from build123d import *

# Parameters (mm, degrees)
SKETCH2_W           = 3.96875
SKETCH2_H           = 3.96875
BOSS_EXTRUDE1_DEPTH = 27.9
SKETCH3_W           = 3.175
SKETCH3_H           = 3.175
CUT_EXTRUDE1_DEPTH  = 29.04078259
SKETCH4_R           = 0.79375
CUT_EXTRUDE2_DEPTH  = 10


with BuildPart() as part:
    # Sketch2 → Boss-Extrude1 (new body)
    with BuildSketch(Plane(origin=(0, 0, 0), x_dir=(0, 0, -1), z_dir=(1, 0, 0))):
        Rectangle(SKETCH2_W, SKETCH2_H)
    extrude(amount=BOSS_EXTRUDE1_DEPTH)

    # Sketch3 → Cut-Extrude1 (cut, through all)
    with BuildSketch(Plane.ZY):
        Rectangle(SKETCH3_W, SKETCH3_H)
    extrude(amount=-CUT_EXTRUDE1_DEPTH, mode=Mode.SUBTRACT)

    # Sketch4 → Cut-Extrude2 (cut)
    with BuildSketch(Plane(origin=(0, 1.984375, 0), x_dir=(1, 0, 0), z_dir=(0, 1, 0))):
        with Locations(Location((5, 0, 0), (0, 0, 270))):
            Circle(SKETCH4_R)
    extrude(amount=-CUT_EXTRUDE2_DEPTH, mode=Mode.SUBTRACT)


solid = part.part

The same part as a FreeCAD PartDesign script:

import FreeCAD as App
import Part
import Sketcher

V = App.Vector
Q = App.Units.Quantity

doc = App.newDocument("Part")
body = doc.addObject("PartDesign::Body", "Body")

# Sketch on YZ plane
sketch1 = body.newObject("Sketcher::SketchObject", "Sketch")
sketch1.AttachmentSupport = (doc.getObject("YZ_Plane"), [""])
sketch1.MapMode = "FlatFace"
sketch1.addGeometry([
    Part.LineSegment(V(2, 2, 0), V(-2, 2, 0)),
    Part.LineSegment(V(-2, 2, 0), V(-2, -2, 0)),
    Part.LineSegment(V(-2, -2, 0), V(2, -2, 0)),
    Part.LineSegment(V(2, -2, 0), V(2, 2, 0)),
], False)
sketch1.addConstraint([
    Sketcher.Constraint("Coincident", 0, 2, 1, 1),
    Sketcher.Constraint("Coincident", 1, 2, 2, 1),
    Sketcher.Constraint("Coincident", 2, 2, 3, 1),
    Sketcher.Constraint("Coincident", 3, 2, 0, 1),
    Sketcher.Constraint("Horizontal", 0),
    Sketcher.Constraint("Vertical", 1),
    Sketcher.Constraint("Horizontal", 2),
    Sketcher.Constraint("Vertical", 3),
    Sketcher.Constraint("Symmetric", 0, 2, 2, 2, -1, 1),
    Sketcher.Constraint("Equal", 2, 1),
    Sketcher.Constraint("DistanceX", 0, 2, 0, 1, Q("0.15625 in")),
])
pad1 = body.newObject("PartDesign::Pad", "Pad")
pad1.Profile = sketch1
pad1.Length = 27.9

# Sketch on YZ plane
sketch2 = body.newObject("Sketcher::SketchObject", "Sketch001")
sketch2.AttachmentSupport = (doc.getObject("YZ_Plane"), [""])
sketch2.MapMode = "FlatFace"
sketch2.addGeometry([
    Part.LineSegment(V(1.6, -1.6, 0), V(-1.6, -1.6, 0)),
    Part.LineSegment(V(-1.6, -1.6, 0), V(-1.6, 1.6, 0)),
    Part.LineSegment(V(-1.6, 1.6, 0), V(1.6, 1.6, 0)),
    Part.LineSegment(V(1.6, 1.6, 0), V(1.6, -1.6, 0)),
], False)
sketch2.addConstraint([
    Sketcher.Constraint("Coincident", 0, 2, 1, 1),
    Sketcher.Constraint("Coincident", 1, 2, 2, 1),
    Sketcher.Constraint("Coincident", 2, 2, 3, 1),
    Sketcher.Constraint("Coincident", 3, 2, 0, 1),
    Sketcher.Constraint("Horizontal", 0),
    Sketcher.Constraint("Vertical", 1),
    Sketcher.Constraint("Horizontal", 2),
    Sketcher.Constraint("Vertical", 3),
    Sketcher.Constraint("Symmetric", 0, 2, 2, 2, -1, 1),
    Sketcher.Constraint("Equal", 2, 1),
    Sketcher.Constraint("DistanceX", 0, 2, 0, 1, Q("0.125 in")),
])
pocket1 = body.newObject("PartDesign::Pocket", "Pocket")
pocket1.Profile = sketch2
pocket1.Type = "ThroughAll"
pocket1.Reversed = True

# Sketch on XZ plane
sketch3 = body.newObject("Sketcher::SketchObject", "Sketch002")
sketch3.AttachmentSupport = (doc.getObject("XZ_Plane"), [""])
sketch3.MapMode = "FlatFace"
sketch3.AttachmentOffset = App.Placement(V(0, 0, -0.078125 * 25.4), App.Rotation())
sketch3.addGeometry(Part.Circle(V(5, 0, 0), V(0, 0, 1), 0.8), False)
sketch3.addConstraint([
    Sketcher.Constraint("PointOnObject", 0, 3, -1),
    Sketcher.Constraint("Diameter", 0, Q("0.0625 in")),
    Sketcher.Constraint("DistanceX", -1, 1, 0, 3, 5.0),
])
pocket2 = body.newObject("PartDesign::Pocket", "Pocket001")
pocket2.Profile = sketch3
pocket2.Length = 10
pocket2.Reversed = True

doc.recompute()
